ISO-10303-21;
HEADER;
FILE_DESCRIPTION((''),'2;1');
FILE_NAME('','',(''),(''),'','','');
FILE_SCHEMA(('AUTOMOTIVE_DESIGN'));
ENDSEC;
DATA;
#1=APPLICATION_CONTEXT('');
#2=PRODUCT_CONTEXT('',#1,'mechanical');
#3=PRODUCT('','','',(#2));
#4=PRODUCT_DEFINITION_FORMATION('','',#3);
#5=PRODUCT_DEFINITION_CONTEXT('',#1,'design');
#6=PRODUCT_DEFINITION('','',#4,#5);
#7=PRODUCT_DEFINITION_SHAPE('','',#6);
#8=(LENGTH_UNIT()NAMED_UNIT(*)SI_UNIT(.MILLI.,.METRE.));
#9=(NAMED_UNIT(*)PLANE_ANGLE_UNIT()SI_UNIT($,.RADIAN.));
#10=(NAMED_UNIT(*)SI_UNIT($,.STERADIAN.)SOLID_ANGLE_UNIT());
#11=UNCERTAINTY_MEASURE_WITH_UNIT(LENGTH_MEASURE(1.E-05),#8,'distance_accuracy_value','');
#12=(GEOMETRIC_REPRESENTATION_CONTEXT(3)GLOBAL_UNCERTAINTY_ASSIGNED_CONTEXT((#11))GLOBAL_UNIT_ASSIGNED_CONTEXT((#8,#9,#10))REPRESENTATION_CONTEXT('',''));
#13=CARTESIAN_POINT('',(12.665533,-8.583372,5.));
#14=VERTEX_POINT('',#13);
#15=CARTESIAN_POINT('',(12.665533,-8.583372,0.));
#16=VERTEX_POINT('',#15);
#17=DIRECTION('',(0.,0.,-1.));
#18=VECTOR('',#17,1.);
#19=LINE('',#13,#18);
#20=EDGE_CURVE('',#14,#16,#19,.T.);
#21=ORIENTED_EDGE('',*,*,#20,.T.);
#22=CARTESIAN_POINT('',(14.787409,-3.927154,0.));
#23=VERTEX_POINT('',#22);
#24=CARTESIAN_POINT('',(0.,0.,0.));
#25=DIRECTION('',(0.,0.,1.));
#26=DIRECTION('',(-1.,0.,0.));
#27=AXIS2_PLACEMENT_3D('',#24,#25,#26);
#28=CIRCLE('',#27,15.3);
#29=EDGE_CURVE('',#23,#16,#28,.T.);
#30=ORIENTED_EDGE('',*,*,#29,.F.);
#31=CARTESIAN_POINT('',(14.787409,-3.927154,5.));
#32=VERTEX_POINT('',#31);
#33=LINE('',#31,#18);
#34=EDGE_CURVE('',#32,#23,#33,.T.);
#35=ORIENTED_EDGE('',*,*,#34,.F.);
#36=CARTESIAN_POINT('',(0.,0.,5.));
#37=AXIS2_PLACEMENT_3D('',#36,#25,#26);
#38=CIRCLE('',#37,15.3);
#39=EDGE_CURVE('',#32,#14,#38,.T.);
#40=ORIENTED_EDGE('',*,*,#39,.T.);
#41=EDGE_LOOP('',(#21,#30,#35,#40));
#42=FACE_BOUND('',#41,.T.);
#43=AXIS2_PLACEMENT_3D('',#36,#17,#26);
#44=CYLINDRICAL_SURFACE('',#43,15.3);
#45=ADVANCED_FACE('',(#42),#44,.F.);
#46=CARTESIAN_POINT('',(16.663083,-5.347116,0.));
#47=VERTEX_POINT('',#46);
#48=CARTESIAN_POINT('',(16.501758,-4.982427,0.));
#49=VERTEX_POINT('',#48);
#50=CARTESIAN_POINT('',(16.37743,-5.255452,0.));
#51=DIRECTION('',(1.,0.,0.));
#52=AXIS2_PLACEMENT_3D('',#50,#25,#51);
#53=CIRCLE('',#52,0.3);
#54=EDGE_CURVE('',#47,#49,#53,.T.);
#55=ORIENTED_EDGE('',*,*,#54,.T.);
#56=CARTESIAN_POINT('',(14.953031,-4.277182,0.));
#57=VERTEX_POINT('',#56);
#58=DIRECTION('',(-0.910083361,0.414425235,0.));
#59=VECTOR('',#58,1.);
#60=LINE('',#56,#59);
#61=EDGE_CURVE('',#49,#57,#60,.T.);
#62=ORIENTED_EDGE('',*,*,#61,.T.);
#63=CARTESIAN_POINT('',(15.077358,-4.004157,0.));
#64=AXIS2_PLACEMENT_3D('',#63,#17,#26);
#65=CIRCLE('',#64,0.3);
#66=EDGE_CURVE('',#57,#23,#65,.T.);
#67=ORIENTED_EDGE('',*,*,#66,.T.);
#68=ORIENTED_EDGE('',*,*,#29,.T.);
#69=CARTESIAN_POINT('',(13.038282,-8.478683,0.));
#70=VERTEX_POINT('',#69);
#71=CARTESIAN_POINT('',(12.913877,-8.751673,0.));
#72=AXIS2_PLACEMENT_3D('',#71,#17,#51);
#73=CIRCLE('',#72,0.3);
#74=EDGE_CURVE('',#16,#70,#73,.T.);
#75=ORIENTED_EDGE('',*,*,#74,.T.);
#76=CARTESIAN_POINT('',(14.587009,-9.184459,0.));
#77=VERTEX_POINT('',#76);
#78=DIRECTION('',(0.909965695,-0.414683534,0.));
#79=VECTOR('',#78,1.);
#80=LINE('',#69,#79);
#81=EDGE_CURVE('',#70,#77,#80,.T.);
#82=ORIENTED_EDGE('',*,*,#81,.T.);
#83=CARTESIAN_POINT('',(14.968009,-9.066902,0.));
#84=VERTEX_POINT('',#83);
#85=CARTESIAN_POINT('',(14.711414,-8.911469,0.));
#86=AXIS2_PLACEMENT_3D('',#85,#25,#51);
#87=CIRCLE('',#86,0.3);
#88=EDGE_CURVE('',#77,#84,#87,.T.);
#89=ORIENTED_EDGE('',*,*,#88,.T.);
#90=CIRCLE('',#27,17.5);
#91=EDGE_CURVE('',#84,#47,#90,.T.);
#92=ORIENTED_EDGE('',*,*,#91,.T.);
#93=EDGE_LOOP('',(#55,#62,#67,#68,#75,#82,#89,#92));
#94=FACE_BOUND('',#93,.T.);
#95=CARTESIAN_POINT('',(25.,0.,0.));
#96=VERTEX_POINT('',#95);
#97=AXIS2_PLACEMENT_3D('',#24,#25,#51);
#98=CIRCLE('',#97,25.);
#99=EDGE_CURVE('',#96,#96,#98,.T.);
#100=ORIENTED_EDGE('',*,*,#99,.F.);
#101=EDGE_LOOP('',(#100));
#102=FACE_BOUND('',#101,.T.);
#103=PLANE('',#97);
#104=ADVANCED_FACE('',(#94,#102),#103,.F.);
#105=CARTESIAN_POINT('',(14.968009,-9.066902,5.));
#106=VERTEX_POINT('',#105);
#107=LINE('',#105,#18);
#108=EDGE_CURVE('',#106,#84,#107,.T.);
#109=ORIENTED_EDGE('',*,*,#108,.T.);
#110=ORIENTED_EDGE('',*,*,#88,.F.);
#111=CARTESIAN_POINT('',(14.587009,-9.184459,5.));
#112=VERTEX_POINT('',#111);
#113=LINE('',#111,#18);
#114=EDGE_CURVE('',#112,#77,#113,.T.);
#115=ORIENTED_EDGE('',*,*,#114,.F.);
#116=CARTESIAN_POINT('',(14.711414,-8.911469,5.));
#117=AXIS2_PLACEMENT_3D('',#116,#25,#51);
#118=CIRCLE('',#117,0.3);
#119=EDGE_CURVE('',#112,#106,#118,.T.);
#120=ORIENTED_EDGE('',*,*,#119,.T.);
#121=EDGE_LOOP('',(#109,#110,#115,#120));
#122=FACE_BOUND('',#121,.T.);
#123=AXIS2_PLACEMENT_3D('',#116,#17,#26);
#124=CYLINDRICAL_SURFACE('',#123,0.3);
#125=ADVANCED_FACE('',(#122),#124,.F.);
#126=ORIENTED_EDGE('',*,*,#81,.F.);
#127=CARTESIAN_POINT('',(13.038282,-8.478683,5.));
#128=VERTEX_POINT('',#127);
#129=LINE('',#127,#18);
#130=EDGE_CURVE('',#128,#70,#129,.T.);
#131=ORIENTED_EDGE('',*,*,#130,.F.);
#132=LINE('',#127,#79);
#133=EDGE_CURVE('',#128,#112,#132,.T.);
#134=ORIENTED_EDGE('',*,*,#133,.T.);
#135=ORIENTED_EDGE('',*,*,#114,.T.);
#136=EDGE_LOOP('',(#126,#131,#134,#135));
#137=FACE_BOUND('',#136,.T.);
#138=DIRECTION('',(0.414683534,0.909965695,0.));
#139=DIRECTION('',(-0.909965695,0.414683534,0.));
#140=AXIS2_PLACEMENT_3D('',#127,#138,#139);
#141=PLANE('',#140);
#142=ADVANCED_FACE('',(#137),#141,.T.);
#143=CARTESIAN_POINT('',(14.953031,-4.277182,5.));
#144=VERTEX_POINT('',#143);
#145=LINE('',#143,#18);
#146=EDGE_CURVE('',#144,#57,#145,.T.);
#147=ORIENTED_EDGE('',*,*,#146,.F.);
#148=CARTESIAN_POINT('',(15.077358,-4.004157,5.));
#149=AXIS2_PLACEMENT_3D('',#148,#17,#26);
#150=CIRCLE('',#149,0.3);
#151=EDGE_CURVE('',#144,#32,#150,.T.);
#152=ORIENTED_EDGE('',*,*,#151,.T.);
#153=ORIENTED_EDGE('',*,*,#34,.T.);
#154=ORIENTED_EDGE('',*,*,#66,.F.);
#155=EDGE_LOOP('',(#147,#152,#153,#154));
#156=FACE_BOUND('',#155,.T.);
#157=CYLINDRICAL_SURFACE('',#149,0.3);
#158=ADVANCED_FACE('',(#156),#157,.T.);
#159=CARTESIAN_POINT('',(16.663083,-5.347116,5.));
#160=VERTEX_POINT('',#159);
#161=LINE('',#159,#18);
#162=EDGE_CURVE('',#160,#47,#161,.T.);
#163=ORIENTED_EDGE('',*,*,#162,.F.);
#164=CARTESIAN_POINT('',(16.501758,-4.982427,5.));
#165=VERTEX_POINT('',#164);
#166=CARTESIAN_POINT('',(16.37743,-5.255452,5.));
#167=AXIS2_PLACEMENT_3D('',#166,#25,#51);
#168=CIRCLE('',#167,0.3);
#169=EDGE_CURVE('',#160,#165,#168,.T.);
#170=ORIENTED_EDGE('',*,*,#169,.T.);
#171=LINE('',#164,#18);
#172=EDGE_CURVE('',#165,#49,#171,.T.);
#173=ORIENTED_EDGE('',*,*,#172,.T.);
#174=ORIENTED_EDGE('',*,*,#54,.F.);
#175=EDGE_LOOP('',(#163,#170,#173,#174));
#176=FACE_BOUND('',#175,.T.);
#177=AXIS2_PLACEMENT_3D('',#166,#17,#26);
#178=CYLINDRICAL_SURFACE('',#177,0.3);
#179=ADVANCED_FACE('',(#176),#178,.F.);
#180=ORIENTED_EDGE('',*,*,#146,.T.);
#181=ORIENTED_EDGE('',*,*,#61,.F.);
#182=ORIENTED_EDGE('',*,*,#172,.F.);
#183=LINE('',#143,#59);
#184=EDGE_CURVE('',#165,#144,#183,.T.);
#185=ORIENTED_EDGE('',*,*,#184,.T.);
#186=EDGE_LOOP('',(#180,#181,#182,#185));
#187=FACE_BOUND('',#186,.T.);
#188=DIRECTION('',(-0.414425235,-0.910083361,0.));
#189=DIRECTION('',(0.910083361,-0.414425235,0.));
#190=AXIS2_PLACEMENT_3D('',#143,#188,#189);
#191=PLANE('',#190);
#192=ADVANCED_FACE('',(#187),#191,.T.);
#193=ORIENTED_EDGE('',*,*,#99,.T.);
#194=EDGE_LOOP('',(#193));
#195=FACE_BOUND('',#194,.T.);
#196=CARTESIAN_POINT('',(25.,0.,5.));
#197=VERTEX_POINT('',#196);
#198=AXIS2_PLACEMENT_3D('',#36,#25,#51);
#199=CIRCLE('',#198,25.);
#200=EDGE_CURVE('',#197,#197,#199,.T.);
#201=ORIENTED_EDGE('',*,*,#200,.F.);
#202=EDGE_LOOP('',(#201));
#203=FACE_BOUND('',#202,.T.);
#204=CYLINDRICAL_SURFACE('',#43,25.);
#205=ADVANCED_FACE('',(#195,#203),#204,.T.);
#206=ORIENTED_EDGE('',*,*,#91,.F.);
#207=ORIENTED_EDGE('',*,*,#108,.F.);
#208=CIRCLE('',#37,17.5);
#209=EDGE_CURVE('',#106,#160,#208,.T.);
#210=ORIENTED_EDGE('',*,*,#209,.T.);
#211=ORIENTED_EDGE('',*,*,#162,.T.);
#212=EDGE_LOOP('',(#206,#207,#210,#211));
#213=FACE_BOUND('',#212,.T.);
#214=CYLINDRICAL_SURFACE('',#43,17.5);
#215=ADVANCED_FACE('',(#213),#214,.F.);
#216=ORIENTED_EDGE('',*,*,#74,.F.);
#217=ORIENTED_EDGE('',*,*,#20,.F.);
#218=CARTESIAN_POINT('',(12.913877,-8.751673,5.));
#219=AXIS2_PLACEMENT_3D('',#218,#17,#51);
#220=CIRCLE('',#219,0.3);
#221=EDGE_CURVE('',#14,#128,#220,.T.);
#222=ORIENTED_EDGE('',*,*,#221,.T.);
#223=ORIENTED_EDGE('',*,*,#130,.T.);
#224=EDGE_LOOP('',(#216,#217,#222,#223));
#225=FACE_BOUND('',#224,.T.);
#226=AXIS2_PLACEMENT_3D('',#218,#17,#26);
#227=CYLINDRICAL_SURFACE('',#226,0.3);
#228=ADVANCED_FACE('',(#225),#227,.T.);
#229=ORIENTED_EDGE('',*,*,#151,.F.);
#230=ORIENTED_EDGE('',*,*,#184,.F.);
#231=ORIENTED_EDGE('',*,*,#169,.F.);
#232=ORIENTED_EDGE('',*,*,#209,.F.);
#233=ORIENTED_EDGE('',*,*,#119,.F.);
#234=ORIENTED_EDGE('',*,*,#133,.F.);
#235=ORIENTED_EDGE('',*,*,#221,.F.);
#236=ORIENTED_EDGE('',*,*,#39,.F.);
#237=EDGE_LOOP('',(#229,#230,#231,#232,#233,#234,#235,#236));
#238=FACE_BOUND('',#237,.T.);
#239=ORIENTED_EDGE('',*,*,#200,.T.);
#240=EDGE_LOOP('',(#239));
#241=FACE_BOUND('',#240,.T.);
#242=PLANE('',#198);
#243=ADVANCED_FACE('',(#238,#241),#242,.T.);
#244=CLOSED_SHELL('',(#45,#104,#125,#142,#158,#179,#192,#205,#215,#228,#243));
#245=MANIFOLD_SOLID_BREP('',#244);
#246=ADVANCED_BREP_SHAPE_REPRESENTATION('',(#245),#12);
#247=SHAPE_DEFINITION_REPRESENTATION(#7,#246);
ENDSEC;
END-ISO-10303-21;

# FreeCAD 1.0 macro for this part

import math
import FreeCAD as App
import Part
import Sketcher
Q = App.Units.Quantity

doc = App.newDocument("Part")
params = doc.addObject("Spreadsheet::Sheet", "Params")
for row, (alias, value) in enumerate([
    ("sketch1_diameter", "50 mm"),
    ("sketch1_radius", "0.3 mm"),
    ("sketch1_radius2", "17.5 mm"),
    ("sketch1_radius3", "15.3 mm"),
    ("pad1_length", "5 mm"),
], start=1):
    params.set(f"A{row}", alias)
    params.set(f"B{row}", "=" + value)
    params.setAlias(f"B{row}", alias)

body = doc.addObject("PartDesign::Body", "Body")

sketch1 = body.newObject("Sketcher::SketchObject", "Sketch")
sketch1.AttachmentSupport = (doc.getObject("XY_Plane"), [""])
sketch1.MapMode = "FlatFace"
sketch1.addGeometry([
    Part.Circle(App.Vector(0, 0, 0), App.Vector(0, 0, 1), 25),
    Part.ArcOfCircle(Part.Circle(App.Vector(15.08, -4, 0), App.Vector(0, 0, 1), 0.3), math.radians(165), math.radians(246)),
    Part.LineSegment(App.Vector(14.95, -4.28, 0), App.Vector(16.5, -4.98, 0)),
    Part.ArcOfCircle(Part.Circle(App.Vector(16.38, -5.26, 0), App.Vector(0, 0, 1), 0.3), math.radians(-18), math.radians(66)),
    Part.ArcOfCircle(Part.Circle(App.Vector(0, 0, 0), App.Vector(0, 0, 1), 17.5), math.radians(-31.21), math.radians(-17.79)),
    Part.ArcOfCircle(Part.Circle(App.Vector(14.71, -8.91, 0), App.Vector(0, 0, 1), 0.3), math.radians(-114), math.radians(-31)),
    Part.LineSegment(App.Vector(14.59, -9.18, 0), App.Vector(13.04, -8.48, 0)),
    Part.ArcOfCircle(Part.Circle(App.Vector(12.91, -8.75, 0), App.Vector(0, 0, 1), 0.3), math.radians(66), math.radians(146)),
    Part.ArcOfCircle(Part.Circle(App.Vector(0, 0, 0), App.Vector(0, 0, 1), 15.3), math.radians(-15), math.radians(326)),
], False)
sketch1.addConstraint([
    Sketcher.Constraint("Tangent", 1, 2, 2, 1),
    Sketcher.Constraint("Tangent", 2, 2, 3, 2),
    Sketcher.Constraint("Tangent", 3, 1, 4, 2),
    Sketcher.Constraint("Tangent", 4, 1, 5, 2),
    Sketcher.Constraint("Tangent", 5, 1, 6, 1),
    Sketcher.Constraint("Tangent", 6, 2, 7, 1),
    Sketcher.Constraint("Tangent", 7, 2, 8, 2),
    Sketcher.Constraint("Tangent", 8, 1, 1, 1),
    Sketcher.Constraint("Coincident", 0, 3, -1, 1),
    Sketcher.Constraint("Coincident", 4, 3, -1, 1),
    Sketcher.Constraint("Coincident", 8, 3, -1, 1),
    Sketcher.Constraint("Equal", 1, 3),
    Sketcher.Constraint("Equal", 3, 5),
    Sketcher.Constraint("Equal", 5, 7),
    Sketcher.Constraint("Diameter", 0, Q("50 mm")),
    Sketcher.Constraint("Radius", 1, Q("0.3 mm")),
    Sketcher.Constraint("Radius", 4, Q("17.5 mm")),
    Sketcher.Constraint("Radius", 8, Q("15.3 mm")),
    Sketcher.Constraint("DistanceX", 5, 1, 4, 1, Q("0.380999 mm")),
    Sketcher.Constraint("DistanceY", 4, 1, -1, 1, Q("9.066902 mm")),
    Sketcher.Constraint("DistanceX", 1, 2, 3, 3, Q("1.4244 mm")),
    Sketcher.Constraint("DistanceY", 6, 2, 1, 2, Q("4.201502 mm")),
])
sketch1.setExpression("Constraints[14]", "Params.sketch1_diameter")
sketch1.setExpression("Constraints[15]", "Params.sketch1_radius")
sketch1.setExpression("Constraints[16]", "Params.sketch1_radius2")
sketch1.setExpression("Constraints[17]", "Params.sketch1_radius3")
pad1 = body.newObject("PartDesign::Pad", "Pad")
pad1.Profile = sketch1
pad1.setExpression("Length", "Params.pad1_length")

doc.recompute()
